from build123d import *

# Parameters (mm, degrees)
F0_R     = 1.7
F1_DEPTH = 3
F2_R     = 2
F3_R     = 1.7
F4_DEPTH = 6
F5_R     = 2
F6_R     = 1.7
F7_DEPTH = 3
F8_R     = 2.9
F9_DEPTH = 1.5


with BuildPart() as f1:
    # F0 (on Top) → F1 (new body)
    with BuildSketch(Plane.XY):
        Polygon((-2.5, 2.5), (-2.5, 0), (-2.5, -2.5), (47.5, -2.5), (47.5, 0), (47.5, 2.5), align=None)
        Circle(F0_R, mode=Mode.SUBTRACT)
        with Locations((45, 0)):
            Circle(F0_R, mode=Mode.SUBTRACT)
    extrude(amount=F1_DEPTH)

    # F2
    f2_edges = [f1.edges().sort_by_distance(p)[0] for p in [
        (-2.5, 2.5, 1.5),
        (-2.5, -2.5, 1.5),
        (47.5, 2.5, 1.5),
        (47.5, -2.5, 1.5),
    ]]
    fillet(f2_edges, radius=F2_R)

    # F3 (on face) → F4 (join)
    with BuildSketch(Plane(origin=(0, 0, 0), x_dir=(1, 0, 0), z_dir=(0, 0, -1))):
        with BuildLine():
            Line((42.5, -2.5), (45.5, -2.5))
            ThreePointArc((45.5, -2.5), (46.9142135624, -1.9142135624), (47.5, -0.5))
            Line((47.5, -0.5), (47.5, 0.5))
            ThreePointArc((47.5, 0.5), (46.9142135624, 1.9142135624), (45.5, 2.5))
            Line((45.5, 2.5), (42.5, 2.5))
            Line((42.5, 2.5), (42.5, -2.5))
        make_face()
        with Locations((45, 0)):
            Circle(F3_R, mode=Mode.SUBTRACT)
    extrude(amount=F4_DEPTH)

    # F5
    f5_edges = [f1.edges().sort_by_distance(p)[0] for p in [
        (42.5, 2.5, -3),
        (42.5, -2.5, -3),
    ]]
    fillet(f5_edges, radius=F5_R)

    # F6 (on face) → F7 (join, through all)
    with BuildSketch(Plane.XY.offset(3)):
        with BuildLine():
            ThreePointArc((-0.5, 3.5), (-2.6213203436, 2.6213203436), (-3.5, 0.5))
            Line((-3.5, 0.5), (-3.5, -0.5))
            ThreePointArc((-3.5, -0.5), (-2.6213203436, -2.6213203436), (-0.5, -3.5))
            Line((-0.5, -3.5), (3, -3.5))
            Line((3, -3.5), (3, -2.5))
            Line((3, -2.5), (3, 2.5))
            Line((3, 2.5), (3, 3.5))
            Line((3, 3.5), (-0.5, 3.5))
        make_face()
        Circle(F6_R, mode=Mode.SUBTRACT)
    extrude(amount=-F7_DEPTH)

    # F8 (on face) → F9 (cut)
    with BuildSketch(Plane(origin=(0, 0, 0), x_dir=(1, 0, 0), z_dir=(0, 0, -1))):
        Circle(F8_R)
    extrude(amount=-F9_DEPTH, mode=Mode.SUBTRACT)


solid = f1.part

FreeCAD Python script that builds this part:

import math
import FreeCAD as App
import Part
import Sketcher
from FreeCAD import Vector


def edges_at(feature, points):
    """Names of the edges that pass closest to the given points."""
    edges = feature.Shape.Edges
    near = lambda p: min(range(len(edges)), key=lambda i: edges[i].distToShape(Part.Vertex(*p))[0])
    return sorted({f"Edge{near(p) + 1}" for p in points})

doc = App.newDocument("Part")
body = doc.addObject("PartDesign::Body", "Body")

# Sketch on XY plane
sketch1 = doc.addObject("Sketcher::SketchObject", "Sketch")
body.addObject(sketch1)
sketch1.AttachmentSupport = (doc.XY_Plane, [""])
sketch1.MapMode = "FlatFace"
sketch1.addGeometry(Part.LineSegment(Vector(-2.5, 2.5, 0), Vector(-2.5, -2.5, 0)), False)
sketch1.addGeometry(Part.LineSegment(Vector(-2.5, -2.5, 0), Vector(47.5, -2.5, 0)), False)
sketch1.addGeometry(Part.LineSegment(Vector(47.5, -2.5, 0), Vector(47.5, 2.5, 0)), False)
sketch1.addGeometry(Part.LineSegment(Vector(47.5, 2.5, 0), Vector(-2.5, 2.5, 0)), False)
sketch1.addGeometry(Part.Circle(Vector(0, 0, 0), Vector(0, 0, 1), 1.7), False)
sketch1.addGeometry(Part.Circle(Vector(45, 0, 0), Vector(0, 0, 1), 1.7), False)
sketch1.addConstraint(Sketcher.Constraint("Coincident", 0, 2, 1, 1))
sketch1.addConstraint(Sketcher.Constraint("Coincident", 1, 2, 2, 1))
sketch1.addConstraint(Sketcher.Constraint("Coincident", 2, 2, 3, 1))
sketch1.addConstraint(Sketcher.Constraint("Coincident", 3, 2, 0, 1))
sketch1.addConstraint(Sketcher.Constraint("Vertical", 0))
sketch1.addConstraint(Sketcher.Constraint("Horizontal", 1))
sketch1.addConstraint(Sketcher.Constraint("Vertical", 2))
sketch1.addConstraint(Sketcher.Constraint("Horizontal", 3))
sketch1.addConstraint(Sketcher.Constraint("Coincident", 4, 3, -1, 1))
sketch1.addConstraint(Sketcher.Constraint("Equal", 4, 5))
sketch1.addConstraint(Sketcher.Constraint("PointOnObject", 5, 3, -1))
sketch1.addConstraint(Sketcher.Constraint("Diameter", 4, 3.4))
sketch1.addConstraint(Sketcher.Constraint("DistanceX", 1, 1, 1, 2, 50.0))
sketch1.addConstraint(Sketcher.Constraint("DistanceY", 0, 2, 0, 1, 5.0))
sketch1.addConstraint(Sketcher.Constraint("DistanceX", -1, 1, 5, 3, 45.0))
sketch1.addConstraint(Sketcher.Constraint("DistanceX", 0, 2, -1, 1, 2.5))
sketch1.addConstraint(Sketcher.Constraint("DistanceY", 0, 2, -1, 1, 2.5))
pad1 = doc.addObject("PartDesign::Pad", "Pad")
body.addObject(pad1)
pad1.Profile = sketch1
pad1.Length = 3
doc.recompute()

fillet = doc.addObject("PartDesign::Fillet", "Fillet")
body.addObject(fillet)
fillet.Base = (pad1, edges_at(pad1, [
    (-2.5, 2.5, 1.5),
    (-2.5, -2.5, 1.5),
    (47.5, 2.5, 1.5),
    (47.5, -2.5, 1.5),
]))
fillet.Radius = 2

# Sketch on XY plane
sketch2 = doc.addObject("Sketcher::SketchObject", "Sketch001")
body.addObject(sketch2)
sketch2.AttachmentSupport = (doc.XY_Plane, [""])
sketch2.MapMode = "FlatFace"
sketch2.addGeometry(Part.LineSegment(Vector(42.5, 2.5, 0), Vector(45.5, 2.5, 0)), False)
sketch2.addGeometry(Part.ArcOfCircle(Part.Circle(Vector(45.5, 0.5, 0), Vector(0, 0, 1), 2), math.radians(0), math.radians(90)), False)
sketch2.addGeometry(Part.LineSegment(Vector(47.5, 0.5, 0), Vector(47.5, -0.5, 0)), False)
sketch2.addGeometry(Part.ArcOfCircle(Part.Circle(Vector(45.5, -0.5, 0), Vector(0, 0, 1), 2), math.radians(-90), math.radians(0)), False)
sketch2.addGeometry(Part.LineSegment(Vector(45.5, -2.5, 0), Vector(42.5, -2.5, 0)), False)
sketch2.addGeometry(Part.LineSegment(Vector(42.5, -2.5, 0), Vector(42.5, 2.5, 0)), False)
sketch2.addGeometry(Part.Circle(Vector(45, 0, 0), Vector(0, 0, 1), 1.7), False)
sketch2.addConstraint(Sketcher.Constraint("Tangent", 0, 2, 1, 2))
sketch2.addConstraint(Sketcher.Constraint("Tangent", 1, 1, 2, 1))
sketch2.addConstraint(Sketcher.Constraint("Tangent", 2, 2, 3, 2))
sketch2.addConstraint(Sketcher.Constraint("Tangent", 3, 1, 4, 1))
sketch2.addConstraint(Sketcher.Constraint("Coincident", 4, 2, 5, 1))
sketch2.addConstraint(Sketcher.Constraint("Coincident", 5, 2, 0, 1))
sketch2.addConstraint(Sketcher.Constraint("Horizontal", 0))
sketch2.addConstraint(Sketcher.Constraint("Vertical", 2))
sketch2.addConstraint(Sketcher.Constraint("Horizontal", 4))
sketch2.addConstraint(Sketcher.Constraint("Vertical", 5))
sketch2.addConstraint(Sketcher.Constraint("Equal", 1, 3))
sketch2.addConstraint(Sketcher.Constraint("PointOnObject", 6, 3, -1))
sketch2.addConstraint(Sketcher.Constraint("Radius", 1, 2.0))
sketch2.addConstraint(Sketcher.Constraint("Diameter", 6, 3.4))
sketch2.addConstraint(Sketcher.Constraint("DistanceX", 0, 1, 0, 2, 3.0))
sketch2.addConstraint(Sketcher.Constraint("DistanceY", 2, 2, 2, 1, 1.0))
sketch2.addConstraint(Sketcher.Constraint("DistanceX", -1, 1, 6, 3, 45.0))
sketch2.addConstraint(Sketcher.Constraint("DistanceX", -1, 1, 1, 3, 45.5))
sketch2.addConstraint(Sketcher.Constraint("DistanceY", -1, 1, 1, 3, 0.5))
pad2 = doc.addObject("PartDesign::Pad", "Pad001")
body.addObject(pad2)
pad2.Profile = sketch2
pad2.Length = 6
pad2.Reversed = True
doc.recompute()

fillet2 = doc.addObject("PartDesign::Fillet", "Fillet001")
body.addObject(fillet2)
fillet2.Base = (pad2, edges_at(pad2, [(42.5, 2.5, -3), (42.5, -2.5, -3)]))
fillet2.Radius = 2

# Sketch on XY plane
sketch3 = doc.addObject("Sketcher::SketchObject", "Sketch002")
body.addObject(sketch3)
sketch3.AttachmentSupport = (doc.XY_Plane, [""])
sketch3.MapMode = "FlatFace"
sketch3.AttachmentOffset = App.Placement(Vector(0, 0, 3), App.Rotation())
sketch3.addGeometry(Part.ArcOfCircle(Part.Circle(Vector(-0.5, 0.5, 0), Vector(0, 0, 1), 3), math.radians(90), math.radians(180)), False)
sketch3.addGeometry(Part.LineSegment(Vector(-3.5, 0.5, 0), Vector(-3.5, -0.5, 0)), False)
sketch3.addGeometry(Part.ArcOfCircle(Part.Circle(Vector(-0.5, -0.5, 0), Vector(0, 0, 1), 3), math.radians(180), math.radians(270)), False)
sketch3.addGeometry(Part.LineSegment(Vector(-0.5, -3.5, 0), Vector(3, -3.5, 0)), False)
sketch3.addGeometry(Part.LineSegment(Vector(3, -3.5, 0), Vector(3, 3.5, 0)), False)
sketch3.addGeometry(Part.LineSegment(Vector(3, 3.5, 0), Vector(-0.5, 3.5, 0)), False)
sketch3.addGeometry(Part.Circle(Vector(0, 0, 0), Vector(0, 0, 1), 1.7), False)
sketch3.addConstraint(Sketcher.Constraint("Tangent", 0, 2, 1, 1))
sketch3.addConstraint(Sketcher.Constraint("Tangent", 1, 2, 2, 1))
sketch3.addConstraint(Sketcher.Constraint("Tangent", 2, 2, 3, 1))
sketch3.addConstraint(Sketcher.Constraint("Coincident", 3, 2, 4, 1))
sketch3.addConstraint(Sketcher.Constraint("Coincident", 4, 2, 5, 1))
sketch3.addConstraint(Sketcher.Constraint("Tangent", 5, 2, 0, 1))
sketch3.addConstraint(Sketcher.Constraint("Vertical", 1))
sketch3.addConstraint(Sketcher.Constraint("Horizontal", 3))
sketch3.addConstraint(Sketcher.Constraint("Vertical", 4))
sketch3.addConstraint(Sketcher.Constraint("Horizontal", 5))
sketch3.addConstraint(Sketcher.Constraint("Coincident", 6, 3, -1, 1))
sketch3.addConstraint(Sketcher.Constraint("Equal", 0, 2))
sketch3.addConstraint(Sketcher.Constraint("Radius", 0, 3.0))
sketch3.addConstraint(Sketcher.Constraint("Diameter", 6, 3.4))
sketch3.addConstraint(Sketcher.Constraint("DistanceY", 1, 2, 1, 1, 1.0))
sketch3.addConstraint(Sketcher.Constraint("DistanceX", 3, 1, 3, 2, 3.5))
sketch3.addConstraint(Sketcher.Constraint("DistanceX", -1, 1, 3, 2, 3.0))
sketch3.addConstraint(Sketcher.Constraint("DistanceY", -1, 1, 0, 3, 0.5))
pad3 = doc.addObject("PartDesign::Pad", "Pad002")
body.addObject(pad3)
pad3.Profile = sketch3
pad3.Length = 3
pad3.Reversed = True

# Sketch on XY plane
sketch4 = doc.addObject("Sketcher::SketchObject", "Sketch003")
body.addObject(sketch4)
sketch4.AttachmentSupport = (doc.XY_Plane, [""])
sketch4.MapMode = "FlatFace"
sketch4.addGeometry(Part.Circle(Vector(0, 0, 0), Vector(0, 0, 1), 2.9), False)
sketch4.addConstraint(Sketcher.Constraint("Coincident", 0, 3, -1, 1))
sketch4.addConstraint(Sketcher.Constraint("Diameter", 0, 5.8))
pocket1 = doc.addObject("PartDesign::Pocket", "Pocket")
body.addObject(pocket1)
pocket1.Profile = sketch4
pocket1.Length = 1.5
pocket1.Reversed = True

doc.recompute()
